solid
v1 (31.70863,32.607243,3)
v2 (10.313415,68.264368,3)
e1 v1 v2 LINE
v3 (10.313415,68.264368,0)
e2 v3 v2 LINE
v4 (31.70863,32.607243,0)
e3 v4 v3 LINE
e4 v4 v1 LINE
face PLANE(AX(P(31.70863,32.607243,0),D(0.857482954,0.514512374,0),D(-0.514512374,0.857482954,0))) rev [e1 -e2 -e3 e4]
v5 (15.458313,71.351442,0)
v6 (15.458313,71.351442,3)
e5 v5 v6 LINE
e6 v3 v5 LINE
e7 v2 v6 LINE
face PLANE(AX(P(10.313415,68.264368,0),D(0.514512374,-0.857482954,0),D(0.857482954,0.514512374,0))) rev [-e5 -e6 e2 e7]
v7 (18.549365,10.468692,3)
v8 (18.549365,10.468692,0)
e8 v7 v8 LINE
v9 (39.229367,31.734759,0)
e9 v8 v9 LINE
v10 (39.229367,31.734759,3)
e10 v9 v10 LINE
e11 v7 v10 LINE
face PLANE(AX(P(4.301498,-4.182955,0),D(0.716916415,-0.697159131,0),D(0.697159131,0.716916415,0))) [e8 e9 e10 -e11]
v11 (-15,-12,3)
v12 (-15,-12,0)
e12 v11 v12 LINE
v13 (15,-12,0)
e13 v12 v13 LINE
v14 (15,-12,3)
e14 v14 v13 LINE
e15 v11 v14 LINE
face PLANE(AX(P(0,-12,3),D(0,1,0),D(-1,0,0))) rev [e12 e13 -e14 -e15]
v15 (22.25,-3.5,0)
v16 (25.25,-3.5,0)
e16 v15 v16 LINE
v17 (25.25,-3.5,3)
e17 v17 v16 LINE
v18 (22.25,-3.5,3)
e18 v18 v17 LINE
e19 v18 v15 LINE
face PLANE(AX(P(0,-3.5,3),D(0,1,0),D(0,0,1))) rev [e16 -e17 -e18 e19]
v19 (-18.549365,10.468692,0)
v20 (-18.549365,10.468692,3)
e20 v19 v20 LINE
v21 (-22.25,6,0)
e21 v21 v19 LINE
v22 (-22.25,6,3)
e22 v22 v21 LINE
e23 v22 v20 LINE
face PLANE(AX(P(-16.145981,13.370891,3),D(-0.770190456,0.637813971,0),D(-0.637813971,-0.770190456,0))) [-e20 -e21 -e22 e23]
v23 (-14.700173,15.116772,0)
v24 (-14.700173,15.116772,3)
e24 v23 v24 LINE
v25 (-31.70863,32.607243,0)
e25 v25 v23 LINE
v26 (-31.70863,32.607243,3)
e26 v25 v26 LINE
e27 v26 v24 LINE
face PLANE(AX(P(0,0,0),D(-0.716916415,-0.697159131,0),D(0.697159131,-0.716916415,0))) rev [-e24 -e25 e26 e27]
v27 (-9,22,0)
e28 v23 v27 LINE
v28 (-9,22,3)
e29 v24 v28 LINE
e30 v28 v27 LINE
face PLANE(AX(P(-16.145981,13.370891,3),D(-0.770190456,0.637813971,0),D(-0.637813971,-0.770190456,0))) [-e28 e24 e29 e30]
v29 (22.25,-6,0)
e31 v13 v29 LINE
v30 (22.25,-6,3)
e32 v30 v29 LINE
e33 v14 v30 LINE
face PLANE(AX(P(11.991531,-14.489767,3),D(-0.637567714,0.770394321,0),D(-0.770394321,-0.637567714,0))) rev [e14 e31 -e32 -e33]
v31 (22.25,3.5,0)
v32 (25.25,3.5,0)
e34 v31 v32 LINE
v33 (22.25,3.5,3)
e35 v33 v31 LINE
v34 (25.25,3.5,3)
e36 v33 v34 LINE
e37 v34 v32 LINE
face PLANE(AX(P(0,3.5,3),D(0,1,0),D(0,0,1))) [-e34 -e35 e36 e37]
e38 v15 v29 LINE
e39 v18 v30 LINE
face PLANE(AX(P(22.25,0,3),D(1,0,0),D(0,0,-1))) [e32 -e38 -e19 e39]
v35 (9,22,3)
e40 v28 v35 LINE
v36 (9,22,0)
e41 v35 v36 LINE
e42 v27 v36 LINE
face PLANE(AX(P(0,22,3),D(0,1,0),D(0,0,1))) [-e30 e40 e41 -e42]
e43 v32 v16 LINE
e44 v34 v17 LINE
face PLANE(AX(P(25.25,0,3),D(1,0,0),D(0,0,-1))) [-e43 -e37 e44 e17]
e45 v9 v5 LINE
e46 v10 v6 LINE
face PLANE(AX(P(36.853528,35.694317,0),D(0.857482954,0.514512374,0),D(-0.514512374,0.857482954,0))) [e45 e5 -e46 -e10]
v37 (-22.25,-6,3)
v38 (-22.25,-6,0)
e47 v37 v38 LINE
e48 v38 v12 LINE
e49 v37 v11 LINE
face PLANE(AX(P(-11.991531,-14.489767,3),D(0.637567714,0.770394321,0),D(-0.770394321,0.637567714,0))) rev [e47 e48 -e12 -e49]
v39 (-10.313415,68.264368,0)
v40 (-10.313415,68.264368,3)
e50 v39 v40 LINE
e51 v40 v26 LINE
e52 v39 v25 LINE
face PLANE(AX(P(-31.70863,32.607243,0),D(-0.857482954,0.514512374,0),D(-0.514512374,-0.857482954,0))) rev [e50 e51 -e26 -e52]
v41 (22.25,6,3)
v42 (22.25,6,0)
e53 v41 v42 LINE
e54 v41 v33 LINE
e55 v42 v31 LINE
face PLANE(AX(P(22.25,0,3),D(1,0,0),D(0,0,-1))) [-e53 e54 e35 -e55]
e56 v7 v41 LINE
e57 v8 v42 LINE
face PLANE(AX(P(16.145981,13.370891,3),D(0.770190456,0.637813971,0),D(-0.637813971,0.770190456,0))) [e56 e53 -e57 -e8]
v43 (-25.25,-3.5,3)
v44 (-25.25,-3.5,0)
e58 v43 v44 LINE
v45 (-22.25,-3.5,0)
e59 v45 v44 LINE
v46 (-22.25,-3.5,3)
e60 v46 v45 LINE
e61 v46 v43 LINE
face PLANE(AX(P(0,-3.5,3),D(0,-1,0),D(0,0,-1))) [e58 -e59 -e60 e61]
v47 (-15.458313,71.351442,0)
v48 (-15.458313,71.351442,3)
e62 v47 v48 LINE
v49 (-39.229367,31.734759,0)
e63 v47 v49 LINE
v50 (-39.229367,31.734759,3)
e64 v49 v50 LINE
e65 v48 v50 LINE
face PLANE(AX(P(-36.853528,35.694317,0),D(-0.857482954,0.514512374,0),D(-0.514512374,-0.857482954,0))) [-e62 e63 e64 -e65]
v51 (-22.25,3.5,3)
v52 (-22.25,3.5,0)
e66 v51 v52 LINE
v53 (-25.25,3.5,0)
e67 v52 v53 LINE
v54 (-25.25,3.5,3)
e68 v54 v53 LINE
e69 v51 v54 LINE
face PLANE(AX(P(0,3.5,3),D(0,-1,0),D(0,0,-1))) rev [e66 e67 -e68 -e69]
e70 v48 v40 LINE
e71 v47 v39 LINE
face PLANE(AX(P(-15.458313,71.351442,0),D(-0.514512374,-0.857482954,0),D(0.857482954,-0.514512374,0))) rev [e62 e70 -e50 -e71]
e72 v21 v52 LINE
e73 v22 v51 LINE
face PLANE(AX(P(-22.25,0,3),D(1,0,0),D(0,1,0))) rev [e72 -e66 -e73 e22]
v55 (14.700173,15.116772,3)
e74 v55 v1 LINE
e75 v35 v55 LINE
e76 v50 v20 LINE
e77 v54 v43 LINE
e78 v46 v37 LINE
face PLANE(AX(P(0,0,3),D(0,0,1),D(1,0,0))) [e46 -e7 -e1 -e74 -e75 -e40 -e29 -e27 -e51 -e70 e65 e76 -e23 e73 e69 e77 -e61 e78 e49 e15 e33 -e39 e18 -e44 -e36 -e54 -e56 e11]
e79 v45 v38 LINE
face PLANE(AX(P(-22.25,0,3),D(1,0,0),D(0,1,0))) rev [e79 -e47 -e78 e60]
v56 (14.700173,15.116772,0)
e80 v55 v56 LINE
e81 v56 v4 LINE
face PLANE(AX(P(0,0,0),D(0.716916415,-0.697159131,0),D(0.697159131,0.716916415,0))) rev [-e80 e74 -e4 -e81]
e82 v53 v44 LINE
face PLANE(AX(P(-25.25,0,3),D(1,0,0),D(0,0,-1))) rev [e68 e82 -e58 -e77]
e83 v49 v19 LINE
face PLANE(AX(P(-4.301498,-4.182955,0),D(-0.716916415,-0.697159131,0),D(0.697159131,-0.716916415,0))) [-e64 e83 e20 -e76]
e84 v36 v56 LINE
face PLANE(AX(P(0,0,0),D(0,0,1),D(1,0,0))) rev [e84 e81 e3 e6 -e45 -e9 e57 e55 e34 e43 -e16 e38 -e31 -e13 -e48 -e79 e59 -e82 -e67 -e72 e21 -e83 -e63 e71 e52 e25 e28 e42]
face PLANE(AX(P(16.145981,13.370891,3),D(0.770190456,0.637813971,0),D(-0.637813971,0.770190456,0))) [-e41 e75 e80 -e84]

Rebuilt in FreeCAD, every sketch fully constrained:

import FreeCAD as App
import Part
import Sketcher

V = App.Vector
Q = App.Units.Quantity


def add_polygon(sketch, points):
    """Adds a closed chain of lines whose ends are joined by coincident constraints."""
    first, n = sketch.GeometryCount, len(points)
    for a, b in zip(points, points[1:] + points[:1]):
        sketch.addGeometry(Part.LineSegment(App.Vector(*a, 0), App.Vector(*b, 0)), False)
    for i in range(n):
        sketch.addConstraint(Sketcher.Constraint("Coincident", first + i, 2, first + (i + 1) % n, 1))

doc = App.newDocument("Part")
body = doc.addObject("PartDesign::Body", "Body")

sketch1 = doc.addObject("Sketcher::SketchObject", "Sketch")
body.addObject(sketch1)
sketch1.AttachmentSupport = (doc.XY_Plane, [""])
sketch1.MapMode = "FlatFace"
add_polygon(sketch1, [(-15, -12), (15, -12), (22.25, -6), (22.25, -3.5), (25.25, -3.5), (25.25, 3.5), (22.25, 3.5), (22.25, 6), (9, 22), (-9, 22), (-22.25, 6), (-22.25, 3.5), (-25.25, 3.5), (-25.25, -3.5), (-22.25, -3.5), (-22.25, -6)])
sketch1.addConstraint(Sketcher.Constraint("Horizontal", 0))
sketch1.addConstraint(Sketcher.Constraint("Vertical", 2))
sketch1.addConstraint(Sketcher.Constraint("Horizontal", 3))
sketch1.addConstraint(Sketcher.Constraint("Vertical", 4))
sketch1.addConstraint(Sketcher.Constraint("Horizontal", 5))
sketch1.addConstraint(Sketcher.Constraint("Vertical", 6))
sketch1.addConstraint(Sketcher.Constraint("Horizontal", 8))
sketch1.addConstraint(Sketcher.Constraint("Vertical", 10))
sketch1.addConstraint(Sketcher.Constraint("Horizontal", 11))
sketch1.addConstraint(Sketcher.Constraint("Vertical", 12))
sketch1.addConstraint(Sketcher.Constraint("Horizontal", 13))
sketch1.addConstraint(Sketcher.Constraint("Vertical", 14))
sketch1.addConstraint(Sketcher.Constraint("Symmetric", 1, 2, 9, 2, -1, 1))
sketch1.addConstraint(Sketcher.Constraint("Symmetric", 3, 2, 11, 2, -1, 1))
sketch1.addConstraint(Sketcher.Constraint("Symmetric", 5, 2, 13, 2, -1, 1))
sketch1.addConstraint(Sketcher.Constraint("Symmetric", 6, 2, 9, 2, -2))
sketch1.addConstraint(Sketcher.Constraint("Horizontal", 5, 2, 10, 2))
sketch1.addConstraint(Sketcher.Constraint("Horizontal", 1, 2, 14, 2))
sketch1.addConstraint(Sketcher.Constraint("Equal", 7, 9))
sketch1.addConstraint(Sketcher.Constraint("Equal", 1, 15))
sketch1.addConstraint(Sketcher.Constraint("DistanceX", 0, 1, 0, 2, Q("30 mm")))
sketch1.addConstraint(Sketcher.Constraint("DistanceX", 3, 1, 3, 2, Q("3 mm")))
sketch1.addConstraint(Sketcher.Constraint("DistanceX", 8, 2, 8, 1, Q("18 mm")))
sketch1.addConstraint(Sketcher.Constraint("DistanceY", 4, 1, 4, 2, Q("7 mm")))
sketch1.addConstraint(Sketcher.Constraint("DistanceY", 2, 1, 2, 2, Q("2.5 mm")))
sketch1.addConstraint(Sketcher.Constraint("DistanceY", 0, 2, -1, 1, Q("12 mm")))
sketch1.addConstraint(Sketcher.Constraint("DistanceY", -1, 1, 7, 2, Q("22 mm")))
sketch1.addConstraint(Sketcher.Constraint("DistanceX", 9, 2, 6, 2, Q("44.5 mm")))
pad1 = doc.addObject("PartDesign::Pad", "Pad")
body.addObject(pad1)
pad1.Profile = sketch1
pad1.Length = 3

sketch2 = doc.addObject("Sketcher::SketchObject", "Sketch001")
body.addObject(sketch2)
sketch2.AttachmentSupport = (doc.XY_Plane, [""])
sketch2.MapMode = "FlatFace"
sketch2.AttachmentOffset = App.Placement(V(0, 0, 3), App.Rotation())
add_polygon(sketch2, [(10.313415, 68.264368), (31.70863, 32.607243), (0, 0), (-31.70863, 32.607243), (-10.313415, 68.264368), (-15.458313, 71.351442), (-39.229367, 31.734759), (0, -8.606356), (39.229367, 31.734759), (15.458313, 71.351442)])
sketch2.addConstraint(Sketcher.Constraint("Coincident", 1, 2, -1, 1))
sketch2.addConstraint(Sketcher.Constraint("Symmetric", 0, 2, 2, 2, -2))
sketch2.addConstraint(Sketcher.Constraint("Symmetric", 5, 2, 7, 2, -2))
sketch2.addConstraint(Sketcher.Constraint("Symmetric", 4, 2, 8, 2, -2))
sketch2.addConstraint(Sketcher.Constraint("Symmetric", 3, 2, 9, 2, -2))
sketch2.addConstraint(Sketcher.Constraint("PointOnObject", 6, 2, -2))
sketch2.addConstraint(Sketcher.Constraint("Perpendicular", 3, 4))
sketch2.addConstraint(Sketcher.Constraint("Perpendicular", 4, 5))
sketch2.addConstraint(Sketcher.Constraint("Parallel", 2, 6))
sketch2.addConstraint(Sketcher.Constraint("Distance", 4, Q("6 mm")))
sketch2.addConstraint(Sketcher.Constraint("DistanceY", 2, 2, 4, 2, Q("38.744199 mm")))
sketch2.addConstraint(Sketcher.Constraint("DistanceY", 6, 2, 0, 2, Q("41.2136 mm")))
sketch2.addConstraint(Sketcher.Constraint("Distance", 0, Q("41.583479 mm")))
sketch2.addConstraint(Sketcher.Constraint("Distance", 1, Q("45.482629 mm")))
sketch2.addConstraint(Sketcher.Constraint("Distance", 5, Q("46.201131 mm")))
pad2 = doc.addObject("PartDesign::Pad", "Pad001")
body.addObject(pad2)
pad2.Profile = sketch2
pad2.Length = 3
pad2.Reversed = True

doc.recompute()
